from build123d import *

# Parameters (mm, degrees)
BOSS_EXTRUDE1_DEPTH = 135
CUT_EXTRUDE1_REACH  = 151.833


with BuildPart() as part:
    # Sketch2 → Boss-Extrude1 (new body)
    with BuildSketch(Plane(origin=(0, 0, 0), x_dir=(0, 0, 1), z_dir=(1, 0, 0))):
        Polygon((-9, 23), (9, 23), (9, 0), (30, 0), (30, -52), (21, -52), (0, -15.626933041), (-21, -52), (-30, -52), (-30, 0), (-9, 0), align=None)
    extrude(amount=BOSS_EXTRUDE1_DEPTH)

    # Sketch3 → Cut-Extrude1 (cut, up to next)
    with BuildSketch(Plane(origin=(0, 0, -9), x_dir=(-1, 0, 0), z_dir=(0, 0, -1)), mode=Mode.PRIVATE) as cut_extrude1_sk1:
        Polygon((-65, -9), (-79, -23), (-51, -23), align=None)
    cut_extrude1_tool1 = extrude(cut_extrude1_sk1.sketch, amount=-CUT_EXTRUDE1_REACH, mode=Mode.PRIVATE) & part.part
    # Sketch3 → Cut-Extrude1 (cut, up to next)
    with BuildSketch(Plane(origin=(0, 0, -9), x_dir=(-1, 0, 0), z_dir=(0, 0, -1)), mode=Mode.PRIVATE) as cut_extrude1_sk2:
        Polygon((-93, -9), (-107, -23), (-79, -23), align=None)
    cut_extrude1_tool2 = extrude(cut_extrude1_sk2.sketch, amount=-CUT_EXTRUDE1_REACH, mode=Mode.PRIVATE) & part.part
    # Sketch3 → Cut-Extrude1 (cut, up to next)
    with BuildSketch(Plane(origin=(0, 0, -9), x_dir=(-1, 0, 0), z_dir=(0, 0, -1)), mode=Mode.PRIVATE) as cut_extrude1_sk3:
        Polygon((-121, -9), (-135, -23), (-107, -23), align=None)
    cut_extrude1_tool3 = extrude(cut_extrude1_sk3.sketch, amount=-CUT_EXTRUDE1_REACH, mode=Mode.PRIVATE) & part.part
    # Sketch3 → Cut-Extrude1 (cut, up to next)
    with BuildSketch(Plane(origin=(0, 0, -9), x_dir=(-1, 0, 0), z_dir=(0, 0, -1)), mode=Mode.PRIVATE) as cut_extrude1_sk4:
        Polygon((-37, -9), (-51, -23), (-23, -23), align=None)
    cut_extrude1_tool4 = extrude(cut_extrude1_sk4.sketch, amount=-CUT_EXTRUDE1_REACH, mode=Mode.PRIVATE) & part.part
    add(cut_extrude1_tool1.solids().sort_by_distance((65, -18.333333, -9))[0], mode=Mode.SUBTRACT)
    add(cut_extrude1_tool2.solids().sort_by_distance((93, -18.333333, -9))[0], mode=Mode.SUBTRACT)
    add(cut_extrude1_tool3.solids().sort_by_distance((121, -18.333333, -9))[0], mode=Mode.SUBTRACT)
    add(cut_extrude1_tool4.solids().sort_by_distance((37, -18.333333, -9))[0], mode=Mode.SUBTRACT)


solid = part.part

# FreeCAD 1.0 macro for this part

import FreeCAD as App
import Part
import Sketcher
from FreeCAD import Vector
Q = App.Units.Quantity


def add_polygon(sketch, points):
    """Adds a closed chain of lines whose ends are joined by coincident constraints."""
    first, n = sketch.GeometryCount, len(points)
    for a, b in zip(points, points[1:] + points[:1]):
        sketch.addGeometry(Part.LineSegment(App.Vector(*a, 0), App.Vector(*b, 0)), False)
    for i in range(n):
        sketch.addConstraint(Sketcher.Constraint("Coincident", first + i, 2, first + (i + 1) % n, 1))

doc = App.newDocument("Part")
params = doc.addObject("Spreadsheet::Sheet", "Params")
for row, (alias, value) in enumerate([
    ("sketch1_width", "23 mm"),
    ("sketch1_width2", "52 mm"),
    ("sketch1_height", "18 mm"),
    ("sketch1_height2", "21 mm"),
    ("sketch1_height3", "9 mm"),
    ("pad1_length", "135 mm"),
    ("sketch2_width", "28 mm"),
    ("sketch3_width", "28 mm"),
    ("sketch4_width", "28 mm"),
    ("sketch5_width", "28 mm"),
], start=1):
    params.set(f"A{row}", alias)
    params.set(f"B{row}", "=" + value)
    params.setAlias(f"B{row}", alias)

body = doc.addObject("PartDesign::Body", "Body")

# Sketch on YZ plane
sketch1 = body.newObject("Sketcher::SketchObject", "Sketch")
sketch1.AttachmentSupport = (doc.getObject("YZ_Plane"), [""])
sketch1.MapMode = "FlatFace"
add_polygon(sketch1, [(-23, 9), (-23, -9), (0, -9), (0, -30), (52, -30), (52, -21), (16, 0), (52, 21), (52, 30), (0, 30), (0, 9)])  # lines 0-10
sketch1.addConstraint(Sketcher.Constraint("Vertical", 0))
sketch1.addConstraint(Sketcher.Constraint("Horizontal", 1))
sketch1.addConstraint(Sketcher.Constraint("Vertical", 2))
sketch1.addConstraint(Sketcher.Constraint("Horizontal", 3))
sketch1.addConstraint(Sketcher.Constraint("Vertical", 4))
sketch1.addConstraint(Sketcher.Constraint("Vertical", 7))
sketch1.addConstraint(Sketcher.Constraint("Horizontal", 8))
sketch1.addConstraint(Sketcher.Constraint("Vertical", 9))
sketch1.addConstraint(Sketcher.Constraint("Horizontal", 10))
sketch1.addConstraint(Sketcher.Constraint("Symmetric", 2, 2, 8, 2, -1, 1))
sketch1.addConstraint(Sketcher.Constraint("Symmetric", 4, 2, 6, 2, -1))
sketch1.addConstraint(Sketcher.Constraint("Symmetric", 1, 2, 9, 2, -1))
sketch1.addConstraint(Sketcher.Constraint("PointOnObject", 5, 2, -1))
sketch1.addConstraint(Sketcher.Constraint("DistanceX", 1, 1, 1, 2, 23.0))
sketch1.addConstraint(Sketcher.Constraint("DistanceX", 3, 1, 3, 2, 52.0))
sketch1.addConstraint(Sketcher.Constraint("DistanceY", 0, 2, 0, 1, 18.0))
sketch1.addConstraint(Sketcher.Constraint("DistanceY", 2, 2, 2, 1, 21.0))
sketch1.addConstraint(Sketcher.Constraint("DistanceY", 4, 1, 4, 2, 9.0))
sketch1.addConstraint(Sketcher.Constraint("Angle", 5, Q("150 deg")))
sketch1.setExpression("Constraints[24]", "Params.sketch1_width")
sketch1.setExpression("Constraints[25]", "Params.sketch1_width2")
sketch1.setExpression("Constraints[26]", "Params.sketch1_height")
sketch1.setExpression("Constraints[27]", "Params.sketch1_height2")
sketch1.setExpression("Constraints[28]", "Params.sketch1_height3")
pad1 = body.newObject("PartDesign::Pad", "Pad")
pad1.Profile = sketch1
pad1.setExpression("Length", "Params.pad1_length")

# Sketch on XY plane
sketch2 = body.newObject("Sketcher::SketchObject", "Sketch001")
sketch2.AttachmentSupport = (doc.getObject("XY_Plane"), [""])
sketch2.MapMode = "FlatFace"
sketch2.AttachmentOffset = App.Placement(Vector(0, 0, -9), App.Rotation())
add_polygon(sketch2, [(65, -9), (79, -23), (51, -23)])  # lines 0-2
sketch2.addConstraint(Sketcher.Constraint("Horizontal", 1))
sketch2.addConstraint(Sketcher.Constraint("Perpendicular", 0, 2))
sketch2.addConstraint(Sketcher.Constraint("Equal", 0, 2))
sketch2.addConstraint(Sketcher.Constraint("DistanceX", 1, 2, 1, 1, 28.0))
sketch2.addConstraint(Sketcher.Constraint("DistanceX", -1, 1, 0, 2, 79.0))
sketch2.addConstraint(Sketcher.Constraint("DistanceY", 0, 2, -1, 1, 23.0))
sketch2.setExpression("Constraints[6]", "Params.sketch2_width")
pocket1 = body.newObject("PartDesign::Pocket", "Pocket")
pocket1.Profile = sketch2
pocket1.Type = "UpToFirst"
pocket1.Reversed = True

# Sketch on XY plane
sketch3 = body.newObject("Sketcher::SketchObject", "Sketch002")
sketch3.AttachmentSupport = (doc.getObject("XY_Plane"), [""])
sketch3.MapMode = "FlatFace"
sketch3.AttachmentOffset = App.Placement(Vector(0, 0, -9), App.Rotation())
add_polygon(sketch3, [(93, -9), (107, -23), (79, -23)])  # lines 0-2
sketch3.addConstraint(Sketcher.Constraint("Horizontal", 1))
sketch3.addConstraint(Sketcher.Constraint("Perpendicular", 0, 2))
sketch3.addConstraint(Sketcher.Constraint("Equal", 0, 2))
sketch3.addConstraint(Sketcher.Constraint("DistanceX", 1, 2, 1, 1, 28.0))
sketch3.addConstraint(Sketcher.Constraint("DistanceX", -1, 1, 0, 2, 107.0))
sketch3.addConstraint(Sketcher.Constraint("DistanceY", 0, 2, -1, 1, 23.0))
sketch3.setExpression("Constraints[6]", "Params.sketch3_width")
pocket2 = body.newObject("PartDesign::Pocket", "Pocket001")
pocket2.Profile = sketch3
pocket2.Type = "UpToFirst"
pocket2.Reversed = True

# Sketch on XY plane
sketch4 = body.newObject("Sketcher::SketchObject", "Sketch003")
sketch4.AttachmentSupport = (doc.getObject("XY_Plane"), [""])
sketch4.MapMode = "FlatFace"
sketch4.AttachmentOffset = App.Placement(Vector(0, 0, -9), App.Rotation())
add_polygon(sketch4, [(121, -9), (135, -23), (107, -23)])  # lines 0-2
sketch4.addConstraint(Sketcher.Constraint("Horizontal", 1))
sketch4.addConstraint(Sketcher.Constraint("Perpendicular", 0, 2))
sketch4.addConstraint(Sketcher.Constraint("Equal", 0, 2))
sketch4.addConstraint(Sketcher.Constraint("DistanceX", 1, 2, 1, 1, 28.0))
sketch4.addConstraint(Sketcher.Constraint("DistanceX", -1, 1, 0, 2, 135.0))
sketch4.addConstraint(Sketcher.Constraint("DistanceY", 0, 2, -1, 1, 23.0))
sketch4.setExpression("Constraints[6]", "Params.sketch4_width")
pocket3 = body.newObject("PartDesign::Pocket", "Pocket002")
pocket3.Profile = sketch4
pocket3.Type = "UpToFirst"
pocket3.Reversed = True

# Sketch on XY plane
sketch5 = body.newObject("Sketcher::SketchObject", "Sketch004")
sketch5.AttachmentSupport = (doc.getObject("XY_Plane"), [""])
sketch5.MapMode = "FlatFace"
sketch5.AttachmentOffset = App.Placement(Vector(0, 0, -9), App.Rotation())
add_polygon(sketch5, [(37, -9), (51, -23), (23, -23)])  # lines 0-2
sketch5.addConstraint(Sketcher.Constraint("Horizontal", 1))
sketch5.addConstraint(Sketcher.Constraint("Perpendicular", 0, 2))
sketch5.addConstraint(Sketcher.Constraint("Equal", 0, 2))
sketch5.addConstraint(Sketcher.Constraint("DistanceX", 1, 2, 1, 1, 28.0))
sketch5.addConstraint(Sketcher.Constraint("DistanceX", -1, 1, 0, 2, 51.0))
sketch5.addConstraint(Sketcher.Constraint("DistanceY", 0, 2, -1, 1, 23.0))
sketch5.setExpression("Constraints[6]", "Params.sketch5_width")
pocket4 = body.newObject("PartDesign::Pocket", "Pocket003")
pocket4.Profile = sketch5
pocket4.Type = "UpToFirst"
pocket4.Reversed = True

doc.recompute()
